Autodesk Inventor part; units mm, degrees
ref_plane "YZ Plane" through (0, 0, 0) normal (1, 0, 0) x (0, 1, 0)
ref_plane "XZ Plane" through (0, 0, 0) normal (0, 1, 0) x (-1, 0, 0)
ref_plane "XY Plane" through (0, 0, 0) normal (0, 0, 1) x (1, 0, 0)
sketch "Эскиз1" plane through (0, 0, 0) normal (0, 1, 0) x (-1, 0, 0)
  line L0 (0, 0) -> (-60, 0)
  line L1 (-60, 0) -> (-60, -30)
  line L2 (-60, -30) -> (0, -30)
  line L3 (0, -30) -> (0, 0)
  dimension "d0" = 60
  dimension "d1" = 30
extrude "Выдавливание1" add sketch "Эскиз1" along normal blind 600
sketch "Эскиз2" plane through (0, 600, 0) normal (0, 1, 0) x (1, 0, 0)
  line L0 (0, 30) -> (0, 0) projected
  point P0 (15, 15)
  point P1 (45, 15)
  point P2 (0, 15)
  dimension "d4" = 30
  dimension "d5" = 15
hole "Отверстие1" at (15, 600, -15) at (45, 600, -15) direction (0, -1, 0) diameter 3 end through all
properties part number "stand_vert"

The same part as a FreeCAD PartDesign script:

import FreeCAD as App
import Part
import Sketcher
from FreeCAD import Vector

doc = App.newDocument("Part")
body = doc.addObject("PartDesign::Body", "Body")

# Sketch on XZ plane
sketch1 = body.newObject("Sketcher::SketchObject", "Sketch")
sketch1.AttachmentSupport = (doc.getObject("XZ_Plane"), [""])
sketch1.MapMode = "FlatFace"
sketch1.addGeometry(Part.LineSegment(Vector(0, -30, 0), Vector(0, 0, 0)), False)
sketch1.addGeometry(Part.LineSegment(Vector(0, 0, 0), Vector(60, 0, 0)), False)
sketch1.addGeometry(Part.LineSegment(Vector(60, 0, 0), Vector(60, -30, 0)), False)
sketch1.addGeometry(Part.LineSegment(Vector(60, -30, 0), Vector(0, -30, 0)), False)
sketch1.addConstraint(Sketcher.Constraint("Coincident", 0, 2, 1, 1))
sketch1.addConstraint(Sketcher.Constraint("Coincident", 1, 2, 2, 1))
sketch1.addConstraint(Sketcher.Constraint("Coincident", 2, 2, 3, 1))
sketch1.addConstraint(Sketcher.Constraint("Coincident", 3, 2, 0, 1))
sketch1.addConstraint(Sketcher.Constraint("Vertical", 0))
sketch1.addConstraint(Sketcher.Constraint("Horizontal", 1))
sketch1.addConstraint(Sketcher.Constraint("Vertical", 2))
sketch1.addConstraint(Sketcher.Constraint("Horizontal", 3))
sketch1.addConstraint(Sketcher.Constraint("Coincident", 0, 2, -1, 1))
sketch1.addConstraint(Sketcher.Constraint("DistanceX", 1, 1, 1, 2, 60.0))
sketch1.addConstraint(Sketcher.Constraint("DistanceY", 0, 1, 0, 2, 30.0))
pad1 = body.newObject("PartDesign::Pad", "Pad")
pad1.Profile = sketch1
pad1.Length = 600
pad1.Reversed = True

# Sketch on XZ plane
sketch2 = body.newObject("Sketcher::SketchObject", "Sketch001")
sketch2.AttachmentSupport = (doc.getObject("XZ_Plane"), [""])
sketch2.MapMode = "FlatFace"
sketch2.AttachmentOffset = App.Placement(Vector(0, 0, -600), App.Rotation())
sketch2.addGeometry(Part.Circle(Vector(15, -15, 0), Vector(0, 0, 1), 1.5), False)
sketch2.addGeometry(Part.Circle(Vector(45, -15, 0), Vector(0, 0, 1), 1.5), False)
sketch2.addConstraint(Sketcher.Constraint("Equal", 0, 1))
sketch2.addConstraint(Sketcher.Constraint("Horizontal", 0, 3, 1, 3))
sketch2.addConstraint(Sketcher.Constraint("Diameter", 0, 3.0))
sketch2.addConstraint(Sketcher.Constraint("DistanceX", -1, 1, 0, 3, 15.0))
sketch2.addConstraint(Sketcher.Constraint("DistanceY", 0, 3, -1, 1, 15.0))
sketch2.addConstraint(Sketcher.Constraint("DistanceX", -1, 1, 1, 3, 45.0))
doc.recompute()
hole = body.newObject("PartDesign::Hole", "Hole")
hole.Profile = sketch2
hole.ThreadType = "None"
hole.Diameter = 3
hole.DepthType = "ThroughAll"
hole.Reversed = True

doc.recompute()
